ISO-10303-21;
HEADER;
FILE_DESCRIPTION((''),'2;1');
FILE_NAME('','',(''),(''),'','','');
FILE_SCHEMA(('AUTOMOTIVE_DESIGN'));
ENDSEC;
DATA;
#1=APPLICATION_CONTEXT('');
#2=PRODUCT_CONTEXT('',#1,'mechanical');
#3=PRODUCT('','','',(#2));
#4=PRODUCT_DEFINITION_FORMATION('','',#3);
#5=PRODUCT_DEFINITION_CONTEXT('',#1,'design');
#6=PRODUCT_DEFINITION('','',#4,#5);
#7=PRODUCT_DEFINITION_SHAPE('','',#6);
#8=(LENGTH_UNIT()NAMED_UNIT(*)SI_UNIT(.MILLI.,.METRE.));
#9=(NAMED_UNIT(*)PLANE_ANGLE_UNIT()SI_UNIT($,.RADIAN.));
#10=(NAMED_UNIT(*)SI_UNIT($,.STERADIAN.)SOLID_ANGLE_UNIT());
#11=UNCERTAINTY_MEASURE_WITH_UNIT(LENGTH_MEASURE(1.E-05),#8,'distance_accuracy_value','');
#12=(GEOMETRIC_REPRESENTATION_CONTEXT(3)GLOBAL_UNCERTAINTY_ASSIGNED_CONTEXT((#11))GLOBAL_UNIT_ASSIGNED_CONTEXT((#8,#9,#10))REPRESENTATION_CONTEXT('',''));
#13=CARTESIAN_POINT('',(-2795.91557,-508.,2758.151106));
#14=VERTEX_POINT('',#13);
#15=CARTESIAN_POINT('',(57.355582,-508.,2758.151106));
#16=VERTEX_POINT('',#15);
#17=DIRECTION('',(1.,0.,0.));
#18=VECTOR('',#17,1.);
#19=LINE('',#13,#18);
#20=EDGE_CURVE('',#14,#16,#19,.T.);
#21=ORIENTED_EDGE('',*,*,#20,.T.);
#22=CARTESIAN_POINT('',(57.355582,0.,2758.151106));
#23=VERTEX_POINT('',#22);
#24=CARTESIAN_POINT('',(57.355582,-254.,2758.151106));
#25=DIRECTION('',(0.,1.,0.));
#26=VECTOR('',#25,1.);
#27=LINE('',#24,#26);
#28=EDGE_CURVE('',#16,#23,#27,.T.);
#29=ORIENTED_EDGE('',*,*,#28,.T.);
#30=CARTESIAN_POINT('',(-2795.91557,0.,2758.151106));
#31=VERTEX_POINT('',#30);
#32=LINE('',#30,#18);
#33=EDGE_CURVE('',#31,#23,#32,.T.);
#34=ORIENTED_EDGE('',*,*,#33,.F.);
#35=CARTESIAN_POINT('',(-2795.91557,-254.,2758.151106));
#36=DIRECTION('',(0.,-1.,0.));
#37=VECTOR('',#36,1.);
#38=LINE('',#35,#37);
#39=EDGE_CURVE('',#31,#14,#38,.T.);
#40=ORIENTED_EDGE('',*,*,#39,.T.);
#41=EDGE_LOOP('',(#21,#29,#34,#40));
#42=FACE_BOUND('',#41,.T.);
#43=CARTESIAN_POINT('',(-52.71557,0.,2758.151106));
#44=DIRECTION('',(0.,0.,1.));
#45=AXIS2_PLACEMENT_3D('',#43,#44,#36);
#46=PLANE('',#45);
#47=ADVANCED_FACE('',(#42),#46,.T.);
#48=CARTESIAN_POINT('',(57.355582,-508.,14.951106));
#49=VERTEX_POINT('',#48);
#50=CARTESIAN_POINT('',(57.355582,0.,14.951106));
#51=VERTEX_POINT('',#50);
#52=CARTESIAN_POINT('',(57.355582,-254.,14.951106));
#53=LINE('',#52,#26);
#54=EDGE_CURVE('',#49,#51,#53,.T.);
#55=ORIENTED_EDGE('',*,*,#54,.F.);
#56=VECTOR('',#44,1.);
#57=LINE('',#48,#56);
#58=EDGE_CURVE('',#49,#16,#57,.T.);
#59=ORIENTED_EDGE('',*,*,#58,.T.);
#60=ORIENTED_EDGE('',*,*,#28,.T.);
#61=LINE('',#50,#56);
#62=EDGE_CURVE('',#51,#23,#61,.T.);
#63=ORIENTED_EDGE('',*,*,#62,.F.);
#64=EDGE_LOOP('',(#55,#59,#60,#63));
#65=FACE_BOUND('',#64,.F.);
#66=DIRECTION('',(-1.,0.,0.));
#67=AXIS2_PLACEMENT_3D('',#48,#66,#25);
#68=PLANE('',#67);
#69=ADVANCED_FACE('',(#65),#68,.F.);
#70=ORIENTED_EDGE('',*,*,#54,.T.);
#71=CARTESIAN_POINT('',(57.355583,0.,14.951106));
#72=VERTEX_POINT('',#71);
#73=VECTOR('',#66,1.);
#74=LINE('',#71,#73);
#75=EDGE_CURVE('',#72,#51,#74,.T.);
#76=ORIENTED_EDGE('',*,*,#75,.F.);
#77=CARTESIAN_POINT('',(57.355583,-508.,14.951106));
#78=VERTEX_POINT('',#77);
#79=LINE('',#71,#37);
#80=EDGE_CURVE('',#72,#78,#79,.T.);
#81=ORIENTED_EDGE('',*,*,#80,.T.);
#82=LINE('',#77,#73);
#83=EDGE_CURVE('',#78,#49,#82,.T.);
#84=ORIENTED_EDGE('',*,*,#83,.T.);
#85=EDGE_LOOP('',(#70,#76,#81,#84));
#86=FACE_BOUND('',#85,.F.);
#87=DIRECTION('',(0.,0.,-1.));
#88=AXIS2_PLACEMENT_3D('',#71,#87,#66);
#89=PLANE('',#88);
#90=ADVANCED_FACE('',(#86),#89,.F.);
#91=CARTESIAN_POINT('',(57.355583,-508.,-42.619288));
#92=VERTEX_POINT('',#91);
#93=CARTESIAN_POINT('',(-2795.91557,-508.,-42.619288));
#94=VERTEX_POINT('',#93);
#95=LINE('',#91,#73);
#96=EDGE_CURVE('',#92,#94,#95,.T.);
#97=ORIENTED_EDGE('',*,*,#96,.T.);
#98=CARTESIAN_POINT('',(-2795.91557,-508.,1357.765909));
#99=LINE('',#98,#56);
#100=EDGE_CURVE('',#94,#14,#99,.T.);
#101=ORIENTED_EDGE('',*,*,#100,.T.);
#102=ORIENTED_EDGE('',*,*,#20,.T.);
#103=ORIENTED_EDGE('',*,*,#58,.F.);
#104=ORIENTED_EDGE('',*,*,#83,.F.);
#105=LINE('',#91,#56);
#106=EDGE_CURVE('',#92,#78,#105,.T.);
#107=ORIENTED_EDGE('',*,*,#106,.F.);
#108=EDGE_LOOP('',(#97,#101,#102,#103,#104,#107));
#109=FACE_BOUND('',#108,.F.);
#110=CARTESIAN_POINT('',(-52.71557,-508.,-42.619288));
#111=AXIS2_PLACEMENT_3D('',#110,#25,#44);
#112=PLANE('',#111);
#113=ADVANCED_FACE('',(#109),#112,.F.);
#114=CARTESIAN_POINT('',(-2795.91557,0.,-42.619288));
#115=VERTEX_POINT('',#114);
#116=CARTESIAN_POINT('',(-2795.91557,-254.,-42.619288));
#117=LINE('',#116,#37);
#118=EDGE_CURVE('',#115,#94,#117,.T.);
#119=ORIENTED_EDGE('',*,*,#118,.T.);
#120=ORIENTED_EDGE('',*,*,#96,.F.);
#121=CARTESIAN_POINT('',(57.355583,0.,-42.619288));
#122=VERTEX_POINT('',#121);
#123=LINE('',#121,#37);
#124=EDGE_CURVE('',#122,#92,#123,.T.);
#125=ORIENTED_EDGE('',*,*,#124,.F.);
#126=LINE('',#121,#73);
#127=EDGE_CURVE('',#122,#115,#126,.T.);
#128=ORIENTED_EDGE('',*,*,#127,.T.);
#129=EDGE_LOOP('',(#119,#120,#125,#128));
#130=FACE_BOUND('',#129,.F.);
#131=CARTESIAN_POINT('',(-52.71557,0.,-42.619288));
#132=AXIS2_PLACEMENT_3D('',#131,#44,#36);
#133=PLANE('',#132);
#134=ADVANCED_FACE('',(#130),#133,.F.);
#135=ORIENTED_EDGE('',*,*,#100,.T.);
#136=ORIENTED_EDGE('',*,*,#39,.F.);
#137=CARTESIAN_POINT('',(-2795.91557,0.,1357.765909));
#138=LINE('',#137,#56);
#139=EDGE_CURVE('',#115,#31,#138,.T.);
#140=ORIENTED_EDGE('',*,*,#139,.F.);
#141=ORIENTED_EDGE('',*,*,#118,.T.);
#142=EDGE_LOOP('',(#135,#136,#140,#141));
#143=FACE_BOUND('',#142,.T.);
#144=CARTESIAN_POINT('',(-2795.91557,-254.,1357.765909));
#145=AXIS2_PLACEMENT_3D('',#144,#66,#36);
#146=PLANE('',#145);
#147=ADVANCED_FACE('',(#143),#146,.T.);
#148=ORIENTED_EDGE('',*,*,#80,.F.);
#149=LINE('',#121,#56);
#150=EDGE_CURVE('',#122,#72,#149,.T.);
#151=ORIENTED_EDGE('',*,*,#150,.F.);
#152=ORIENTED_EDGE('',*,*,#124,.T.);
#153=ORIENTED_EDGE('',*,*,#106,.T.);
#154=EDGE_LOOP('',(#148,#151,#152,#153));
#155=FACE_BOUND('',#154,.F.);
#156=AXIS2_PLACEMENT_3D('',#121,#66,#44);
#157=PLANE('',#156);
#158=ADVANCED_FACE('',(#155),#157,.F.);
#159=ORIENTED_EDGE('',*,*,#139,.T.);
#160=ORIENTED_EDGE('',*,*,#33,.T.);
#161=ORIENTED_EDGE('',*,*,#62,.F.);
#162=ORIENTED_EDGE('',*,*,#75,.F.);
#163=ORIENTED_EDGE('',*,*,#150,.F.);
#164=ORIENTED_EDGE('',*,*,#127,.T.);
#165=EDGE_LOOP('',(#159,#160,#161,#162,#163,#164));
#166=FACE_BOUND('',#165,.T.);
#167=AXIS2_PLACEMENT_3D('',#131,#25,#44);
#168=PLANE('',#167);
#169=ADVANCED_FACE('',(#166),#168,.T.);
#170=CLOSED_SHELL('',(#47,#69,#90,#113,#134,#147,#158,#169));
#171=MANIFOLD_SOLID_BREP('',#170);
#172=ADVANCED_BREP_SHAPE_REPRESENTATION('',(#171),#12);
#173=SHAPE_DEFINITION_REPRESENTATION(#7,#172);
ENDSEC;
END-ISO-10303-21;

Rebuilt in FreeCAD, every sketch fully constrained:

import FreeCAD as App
import Part
import Sketcher

V = App.Vector
Q = App.Units.Quantity

doc = App.newDocument("Part")
params = doc.addObject("Spreadsheet::Sheet", "Params")
for row, (alias, value) in enumerate([
    ("pad1_length", "20 in"),
    ("sketch2_height", "20 in"),
    ("pad2_length", "108 in"),
    ("pad2_length2", "1 in"),
    ("sketch3_width", "20 in"),
    ("pad3_length", "108 in"),
], start=1):
    params.set(f"A{row}", alias)
    params.set(f"B{row}", "=" + value)
    params.setAlias(f"B{row}", alias)

body = doc.addObject("PartDesign::Body", "Body")

sketch1 = doc.addObject("Sketcher::SketchObject", "Sketch")
body.addObject(sketch1)
sketch1.AttachmentSupport = (doc.XZ_Plane, [""])
sketch1.MapMode = "FlatFace"
sketch1.addGeometry(Part.LineSegment(V(-52.71557, 14.951106, 0), V(-52.71557, -42.619288, 0)), False)
sketch1.addGeometry(Part.LineSegment(V(-52.71557, -42.619288, 0), V(57.355583, -42.619288, 0)), False)
sketch1.addGeometry(Part.LineSegment(V(57.355583, -42.619288, 0), V(57.355583, 14.951106, 0)), False)
sketch1.addGeometry(Part.LineSegment(V(57.355583, 14.951106, 0), V(-52.71557, 14.951106, 0)), False)
sketch1.addConstraint(Sketcher.Constraint("Coincident", 0, 2, 1, 1))
sketch1.addConstraint(Sketcher.Constraint("Coincident", 1, 2, 2, 1))
sketch1.addConstraint(Sketcher.Constraint("Coincident", 2, 2, 3, 1))
sketch1.addConstraint(Sketcher.Constraint("Coincident", 3, 2, 0, 1))
sketch1.addConstraint(Sketcher.Constraint("Vertical", 0))
sketch1.addConstraint(Sketcher.Constraint("Horizontal", 1))
sketch1.addConstraint(Sketcher.Constraint("Vertical", 2))
sketch1.addConstraint(Sketcher.Constraint("Horizontal", 3))
sketch1.addConstraint(Sketcher.Constraint("DistanceX", 1, 1, 1, 2, Q("110.071153 mm")))
sketch1.addConstraint(Sketcher.Constraint("DistanceY", 0, 2, 0, 1, Q("57.570394 mm")))
sketch1.addConstraint(Sketcher.Constraint("DistanceX", 0, 2, -1, 1, Q("52.71557 mm")))
sketch1.addConstraint(Sketcher.Constraint("DistanceY", 0, 2, -1, 1, Q("42.619288 mm")))
pad1 = doc.addObject("PartDesign::Pad", "Pad")
body.addObject(pad1)
pad1.Profile = sketch1
pad1.setExpression("Length", "Params.pad1_length")

sketch2 = doc.addObject("Sketcher::SketchObject", "Sketch001")
body.addObject(sketch2)
sketch2.AttachmentSupport = (doc.XY_Plane, [""])
sketch2.MapMode = "FlatFace"
sketch2.AttachmentOffset = App.Placement(V(0, 0, 14.951106), App.Rotation())
sketch2.addGeometry(Part.LineSegment(V(-52.71557, 0, 0), V(-52.71557, -508, 0)), False)
sketch2.addGeometry(Part.LineSegment(V(-52.71557, -508, 0), V(57.355582, -508, 0)), False)
sketch2.addGeometry(Part.LineSegment(V(57.355582, -508, 0), V(57.355582, 0, 0)), False)
sketch2.addGeometry(Part.LineSegment(V(57.355582, 0, 0), V(-52.71557, 0, 0)), False)
sketch2.addConstraint(Sketcher.Constraint("Coincident", 0, 2, 1, 1))
sketch2.addConstraint(Sketcher.Constraint("Coincident", 1, 2, 2, 1))
sketch2.addConstraint(Sketcher.Constraint("Coincident", 2, 2, 3, 1))
sketch2.addConstraint(Sketcher.Constraint("Coincident", 3, 2, 0, 1))
sketch2.addConstraint(Sketcher.Constraint("Vertical", 0))
sketch2.addConstraint(Sketcher.Constraint("Horizontal", 1))
sketch2.addConstraint(Sketcher.Constraint("Vertical", 2))
sketch2.addConstraint(Sketcher.Constraint("Horizontal", 3))
sketch2.addConstraint(Sketcher.Constraint("PointOnObject", 2, 2, -1))
sketch2.addConstraint(Sketcher.Constraint("DistanceY", 0, 2, 0, 1, Q("20 in")))
sketch2.addConstraint(Sketcher.Constraint("DistanceX", 1, 1, 1, 2, Q("110.071152 mm")))
sketch2.addConstraint(Sketcher.Constraint("DistanceX", 0, 2, -1, 1, Q("52.71557 mm")))
sketch2.setExpression("Constraints[9]", "Params.sketch2_height")
pad2 = doc.addObject("PartDesign::Pad", "Pad001")
body.addObject(pad2)
pad2.Profile = sketch2
pad2.Type = "TwoLengths"
pad2.setExpression("Length", "Params.pad2_length")
pad2.setExpression("Length2", "Params.pad2_length2")

sketch3 = doc.addObject("Sketcher::SketchObject", "Sketch002")
body.addObject(sketch3)
sketch3.AttachmentSupport = (doc.YZ_Plane, [""])
sketch3.MapMode = "FlatFace"
sketch3.AttachmentOffset = App.Placement(V(0, 0, -52.71557), App.Rotation())
sketch3.addGeometry(Part.LineSegment(V(0, 2758.151106, 0), V(0, -42.619288, 0)), False)
sketch3.addGeometry(Part.LineSegment(V(0, -42.619288, 0), V(-508, -42.619288, 0)), False)
sketch3.addGeometry(Part.LineSegment(V(-508, -42.619288, 0), V(-508, 2758.151106, 0)), False)
sketch3.addGeometry(Part.LineSegment(V(-508, 2758.151106, 0), V(0, 2758.151106, 0)), False)
sketch3.addConstraint(Sketcher.Constraint("Coincident", 0, 2, 1, 1))
sketch3.addConstraint(Sketcher.Constraint("Coincident", 1, 2, 2, 1))
sketch3.addConstraint(Sketcher.Constraint("Coincident", 2, 2, 3, 1))
sketch3.addConstraint(Sketcher.Constraint("Coincident", 3, 2, 0, 1))
sketch3.addConstraint(Sketcher.Constraint("Vertical", 0))
sketch3.addConstraint(Sketcher.Constraint("Horizontal", 1))
sketch3.addConstraint(Sketcher.Constraint("Vertical", 2))
sketch3.addConstraint(Sketcher.Constraint("Horizontal", 3))
sketch3.addConstraint(Sketcher.Constraint("PointOnObject", 0, 2, -2))
sketch3.addConstraint(Sketcher.Constraint("DistanceX", 1, 2, 1, 1, Q("20 in")))
sketch3.addConstraint(Sketcher.Constraint("DistanceY", 0, 2, 0, 1, Q("2800.770394 mm")))
sketch3.addConstraint(Sketcher.Constraint("DistanceY", 0, 2, -1, 1, Q("42.619288 mm")))
sketch3.setExpression("Constraints[9]", "Params.sketch3_width")
pad3 = doc.addObject("PartDesign::Pad", "Pad002")
body.addObject(pad3)
pad3.Profile = sketch3
pad3.setExpression("Length", "Params.pad3_length")
pad3.Reversed = True

doc.recompute()
